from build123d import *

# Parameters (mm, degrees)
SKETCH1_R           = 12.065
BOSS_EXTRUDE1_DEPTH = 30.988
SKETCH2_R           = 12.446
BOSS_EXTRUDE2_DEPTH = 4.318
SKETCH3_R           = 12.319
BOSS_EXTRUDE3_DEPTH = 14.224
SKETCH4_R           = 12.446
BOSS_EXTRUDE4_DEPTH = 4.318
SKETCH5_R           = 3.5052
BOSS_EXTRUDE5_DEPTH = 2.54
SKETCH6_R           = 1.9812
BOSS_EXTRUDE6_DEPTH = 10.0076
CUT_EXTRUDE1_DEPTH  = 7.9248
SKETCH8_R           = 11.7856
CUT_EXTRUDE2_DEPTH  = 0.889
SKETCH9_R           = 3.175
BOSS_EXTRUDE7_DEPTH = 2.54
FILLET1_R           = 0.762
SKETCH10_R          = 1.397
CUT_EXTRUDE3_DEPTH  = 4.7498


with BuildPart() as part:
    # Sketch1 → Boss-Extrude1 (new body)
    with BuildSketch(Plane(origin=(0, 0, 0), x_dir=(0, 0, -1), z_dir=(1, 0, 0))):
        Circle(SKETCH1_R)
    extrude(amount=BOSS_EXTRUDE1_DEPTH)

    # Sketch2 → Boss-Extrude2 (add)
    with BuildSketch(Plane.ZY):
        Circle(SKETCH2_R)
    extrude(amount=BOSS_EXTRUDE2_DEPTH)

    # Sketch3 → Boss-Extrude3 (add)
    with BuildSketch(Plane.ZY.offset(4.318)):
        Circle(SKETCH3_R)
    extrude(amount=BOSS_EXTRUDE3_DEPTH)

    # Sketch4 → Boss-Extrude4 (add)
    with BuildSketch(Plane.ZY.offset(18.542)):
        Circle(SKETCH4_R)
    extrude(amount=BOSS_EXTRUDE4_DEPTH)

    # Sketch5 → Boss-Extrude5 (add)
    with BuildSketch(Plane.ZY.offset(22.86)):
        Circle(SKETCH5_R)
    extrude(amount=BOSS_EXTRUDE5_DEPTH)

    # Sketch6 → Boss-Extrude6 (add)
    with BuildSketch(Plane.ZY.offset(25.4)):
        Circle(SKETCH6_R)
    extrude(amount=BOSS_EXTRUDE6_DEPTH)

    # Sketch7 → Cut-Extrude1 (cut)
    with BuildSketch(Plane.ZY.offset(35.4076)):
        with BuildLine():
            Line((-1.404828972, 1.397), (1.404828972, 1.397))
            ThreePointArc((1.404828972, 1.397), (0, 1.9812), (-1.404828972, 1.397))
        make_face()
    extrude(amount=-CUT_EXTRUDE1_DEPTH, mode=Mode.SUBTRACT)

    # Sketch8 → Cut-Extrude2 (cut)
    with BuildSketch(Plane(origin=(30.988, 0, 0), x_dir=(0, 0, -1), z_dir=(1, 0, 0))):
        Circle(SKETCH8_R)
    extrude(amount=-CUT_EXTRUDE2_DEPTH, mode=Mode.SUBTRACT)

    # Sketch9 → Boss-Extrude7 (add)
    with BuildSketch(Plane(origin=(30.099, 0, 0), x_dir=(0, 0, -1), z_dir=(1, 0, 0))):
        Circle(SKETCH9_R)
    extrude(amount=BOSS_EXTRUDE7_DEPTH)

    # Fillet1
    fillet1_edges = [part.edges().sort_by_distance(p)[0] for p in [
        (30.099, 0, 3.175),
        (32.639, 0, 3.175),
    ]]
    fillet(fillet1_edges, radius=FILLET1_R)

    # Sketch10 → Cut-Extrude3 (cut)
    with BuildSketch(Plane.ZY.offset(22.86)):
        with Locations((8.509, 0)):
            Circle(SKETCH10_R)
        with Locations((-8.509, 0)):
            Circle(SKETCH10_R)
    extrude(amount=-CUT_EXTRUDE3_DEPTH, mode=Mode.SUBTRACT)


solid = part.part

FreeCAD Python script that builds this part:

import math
import FreeCAD as App
import Part
import Sketcher
from FreeCAD import Vector
Q = App.Units.Quantity


def edges_at(feature, points):
    """Names of the edges that pass closest to the given points."""
    edges = feature.Shape.Edges
    near = lambda p: min(range(len(edges)), key=lambda i: edges[i].distToShape(Part.Vertex(*p))[0])
    return sorted({f"Edge{near(p) + 1}" for p in points})

doc = App.newDocument("Part")
body = doc.addObject("PartDesign::Body", "Body")

# Sketch on YZ plane
sketch1 = body.newObject("Sketcher::SketchObject", "Sketch")
sketch1.AttachmentSupport = (doc.getObject("YZ_Plane"), [""])
sketch1.MapMode = "FlatFace"
sketch1.addGeometry(Part.Circle(Vector(0, 0, 0), Vector(0, 0, 1), 12), False)
sketch1.addConstraint(Sketcher.Constraint("Coincident", 0, 3, -1, 1))
sketch1.addConstraint(Sketcher.Constraint("Diameter", 0, Q("0.95 in")))
pad1 = body.newObject("PartDesign::Pad", "Pad")
pad1.Profile = sketch1
pad1.Length = Q("1.22 in")

# Sketch on YZ plane
sketch2 = body.newObject("Sketcher::SketchObject", "Sketch001")
sketch2.AttachmentSupport = (doc.getObject("YZ_Plane"), [""])
sketch2.MapMode = "FlatFace"
sketch2.addGeometry(Part.Circle(Vector(0, 0, 0), Vector(0, 0, 1), 12), False)
sketch2.addConstraint(Sketcher.Constraint("Coincident", 0, 3, -1, 1))
sketch2.addConstraint(Sketcher.Constraint("Diameter", 0, Q("0.98 in")))
pad2 = body.newObject("PartDesign::Pad", "Pad001")
pad2.Profile = sketch2
pad2.Length = Q("0.17 in")
pad2.Reversed = True

# Sketch on YZ plane
sketch3 = body.newObject("Sketcher::SketchObject", "Sketch002")
sketch3.AttachmentSupport = (doc.getObject("YZ_Plane"), [""])
sketch3.MapMode = "FlatFace"
sketch3.AttachmentOffset = App.Placement(Vector(0, 0, -0.17 * 25.4), App.Rotation())
sketch3.addGeometry(Part.Circle(Vector(0, 0, 0), Vector(0, 0, 1), 12), False)
sketch3.addConstraint(Sketcher.Constraint("Coincident", 0, 3, -1, 1))
sketch3.addConstraint(Sketcher.Constraint("Diameter", 0, Q("0.97 in")))
pad3 = body.newObject("PartDesign::Pad", "Pad002")
pad3.Profile = sketch3
pad3.Length = Q("0.56 in")
pad3.Reversed = True

# Sketch on YZ plane
sketch4 = body.newObject("Sketcher::SketchObject", "Sketch003")
sketch4.AttachmentSupport = (doc.getObject("YZ_Plane"), [""])
sketch4.MapMode = "FlatFace"
sketch4.AttachmentOffset = App.Placement(Vector(0, 0, -0.73 * 25.4), App.Rotation())
sketch4.addGeometry(Part.Circle(Vector(0, 0, 0), Vector(0, 0, 1), 12), False)
sketch4.addConstraint(Sketcher.Constraint("Coincident", 0, 3, -1, 1))
sketch4.addConstraint(Sketcher.Constraint("Diameter", 0, Q("0.98 in")))
pad4 = body.newObject("PartDesign::Pad", "Pad003")
pad4.Profile = sketch4
pad4.Length = Q("0.17 in")
pad4.Reversed = True

# Sketch on YZ plane
sketch5 = body.newObject("Sketcher::SketchObject", "Sketch004")
sketch5.AttachmentSupport = (doc.getObject("YZ_Plane"), [""])
sketch5.MapMode = "FlatFace"
sketch5.AttachmentOffset = App.Placement(Vector(0, 0, -0.9 * 25.4), App.Rotation())
sketch5.addGeometry(Part.Circle(Vector(0, 0, 0), Vector(0, 0, 1), 3.5), False)
sketch5.addConstraint(Sketcher.Constraint("Coincident", 0, 3, -1, 1))
sketch5.addConstraint(Sketcher.Constraint("Diameter", 0, Q("0.276 in")))
pad5 = body.newObject("PartDesign::Pad", "Pad004")
pad5.Profile = sketch5
pad5.Length = Q("0.1 in")
pad5.Reversed = True

# Sketch on YZ plane
sketch6 = body.newObject("Sketcher::SketchObject", "Sketch005")
sketch6.AttachmentSupport = (doc.getObject("YZ_Plane"), [""])
sketch6.MapMode = "FlatFace"
sketch6.AttachmentOffset = App.Placement(Vector(0, 0, -1 * 25.4), App.Rotation())
sketch6.addGeometry(Part.Circle(Vector(0, 0, 0), Vector(0, 0, 1), 2), False)
sketch6.addConstraint(Sketcher.Constraint("Coincident", 0, 3, -1, 1))
sketch6.addConstraint(Sketcher.Constraint("Diameter", 0, Q("0.156 in")))
pad6 = body.newObject("PartDesign::Pad", "Pad005")
pad6.Profile = sketch6
pad6.Length = Q("0.394 in")
pad6.Reversed = True

# Sketch on YZ plane
sketch7 = body.newObject("Sketcher::SketchObject", "Sketch006")
sketch7.AttachmentSupport = (doc.getObject("YZ_Plane"), [""])
sketch7.MapMode = "FlatFace"
sketch7.AttachmentOffset = App.Placement(Vector(0, 0, -1.394 * 25.4), App.Rotation())
sketch7.addGeometry(Part.LineSegment(Vector(1.4, -1.4, 0), Vector(1.4, 1.4, 0)), False)
sketch7.addGeometry(Part.ArcOfCircle(Part.Circle(Vector(0, 0, 0), Vector(0, 0, 1), 2), math.radians(-45), math.radians(45)), False)
sketch7.addConstraint(Sketcher.Constraint("Coincident", 0, 1, 1, 1))
sketch7.addConstraint(Sketcher.Constraint("Coincident", 1, 2, 0, 2))
sketch7.addConstraint(Sketcher.Constraint("Vertical", 0))
sketch7.addConstraint(Sketcher.Constraint("Coincident", 1, 3, -1, 1))
sketch7.addConstraint(Sketcher.Constraint("Radius", 1, Q("0.078 in")))
sketch7.addConstraint(Sketcher.Constraint("DistanceX", -1, 1, 0, 1, Q("0.055 in")))
pocket1 = body.newObject("PartDesign::Pocket", "Pocket")
pocket1.Profile = sketch7
pocket1.Length = Q("0.312 in")
pocket1.Reversed = True

# Sketch on YZ plane
sketch8 = body.newObject("Sketcher::SketchObject", "Sketch007")
sketch8.AttachmentSupport = (doc.getObject("YZ_Plane"), [""])
sketch8.MapMode = "FlatFace"
sketch8.AttachmentOffset = App.Placement(Vector(0, 0, 1.22 * 25.4), App.Rotation())
sketch8.addGeometry(Part.Circle(Vector(0, 0, 0), Vector(0, 0, 1), 12), False)
sketch8.addConstraint(Sketcher.Constraint("Coincident", 0, 3, -1, 1))
sketch8.addConstraint(Sketcher.Constraint("Diameter", 0, Q("0.928 in")))
pocket2 = body.newObject("PartDesign::Pocket", "Pocket001")
pocket2.Profile = sketch8
pocket2.Length = Q("0.035 in")

# Sketch on YZ plane
sketch9 = body.newObject("Sketcher::SketchObject", "Sketch008")
sketch9.AttachmentSupport = (doc.getObject("YZ_Plane"), [""])
sketch9.MapMode = "FlatFace"
sketch9.AttachmentOffset = App.Placement(Vector(0, 0, 1.185 * 25.4), App.Rotation())
sketch9.addGeometry(Part.Circle(Vector(0, 0, 0), Vector(0, 0, 1), 3.2), False)
sketch9.addConstraint(Sketcher.Constraint("Coincident", 0, 3, -1, 1))
sketch9.addConstraint(Sketcher.Constraint("Diameter", 0, Q("0.25 in")))
pad7 = body.newObject("PartDesign::Pad", "Pad006")
pad7.Profile = sketch9
pad7.Length = Q("0.1 in")
doc.recompute()

fillet = body.newObject("PartDesign::Fillet", "Fillet")
fillet.Base = (pad7, edges_at(pad7, [(30.099, 0, 3.175), (32.639, 0, 3.175)]))
fillet.Radius = Q("0.03 in")

# Sketch on YZ plane
sketch10 = body.newObject("Sketcher::SketchObject", "Sketch009")
sketch10.AttachmentSupport = (doc.getObject("YZ_Plane"), [""])
sketch10.MapMode = "FlatFace"
sketch10.AttachmentOffset = App.Placement(Vector(0, 0, -0.9 * 25.4), App.Rotation())
sketch10.addGeometry(Part.Circle(Vector(0, 8.5, 0), Vector(0, 0, 1), 1.4), False)
sketch10.addGeometry(Part.Circle(Vector(0, -8.5, 0), Vector(0, 0, 1), 1.4), False)
sketch10.addConstraint(Sketcher.Constraint("Equal", 0, 1))
sketch10.addConstraint(Sketcher.Constraint("Symmetric", 0, 3, 1, 3, -1, 1))
sketch10.addConstraint(Sketcher.Constraint("PointOnObject", 0, 3, -2))
sketch10.addConstraint(Sketcher.Constraint("Diameter", 0, Q("0.11 in")))
sketch10.addConstraint(Sketcher.Constraint("DistanceY", 1, 3, 0, 3, Q("0.67 in")))
pocket3 = body.newObject("PartDesign::Pocket", "Pocket002")
pocket3.Profile = sketch10
pocket3.Length = Q("0.187 in")
pocket3.Reversed = True

doc.recompute()
